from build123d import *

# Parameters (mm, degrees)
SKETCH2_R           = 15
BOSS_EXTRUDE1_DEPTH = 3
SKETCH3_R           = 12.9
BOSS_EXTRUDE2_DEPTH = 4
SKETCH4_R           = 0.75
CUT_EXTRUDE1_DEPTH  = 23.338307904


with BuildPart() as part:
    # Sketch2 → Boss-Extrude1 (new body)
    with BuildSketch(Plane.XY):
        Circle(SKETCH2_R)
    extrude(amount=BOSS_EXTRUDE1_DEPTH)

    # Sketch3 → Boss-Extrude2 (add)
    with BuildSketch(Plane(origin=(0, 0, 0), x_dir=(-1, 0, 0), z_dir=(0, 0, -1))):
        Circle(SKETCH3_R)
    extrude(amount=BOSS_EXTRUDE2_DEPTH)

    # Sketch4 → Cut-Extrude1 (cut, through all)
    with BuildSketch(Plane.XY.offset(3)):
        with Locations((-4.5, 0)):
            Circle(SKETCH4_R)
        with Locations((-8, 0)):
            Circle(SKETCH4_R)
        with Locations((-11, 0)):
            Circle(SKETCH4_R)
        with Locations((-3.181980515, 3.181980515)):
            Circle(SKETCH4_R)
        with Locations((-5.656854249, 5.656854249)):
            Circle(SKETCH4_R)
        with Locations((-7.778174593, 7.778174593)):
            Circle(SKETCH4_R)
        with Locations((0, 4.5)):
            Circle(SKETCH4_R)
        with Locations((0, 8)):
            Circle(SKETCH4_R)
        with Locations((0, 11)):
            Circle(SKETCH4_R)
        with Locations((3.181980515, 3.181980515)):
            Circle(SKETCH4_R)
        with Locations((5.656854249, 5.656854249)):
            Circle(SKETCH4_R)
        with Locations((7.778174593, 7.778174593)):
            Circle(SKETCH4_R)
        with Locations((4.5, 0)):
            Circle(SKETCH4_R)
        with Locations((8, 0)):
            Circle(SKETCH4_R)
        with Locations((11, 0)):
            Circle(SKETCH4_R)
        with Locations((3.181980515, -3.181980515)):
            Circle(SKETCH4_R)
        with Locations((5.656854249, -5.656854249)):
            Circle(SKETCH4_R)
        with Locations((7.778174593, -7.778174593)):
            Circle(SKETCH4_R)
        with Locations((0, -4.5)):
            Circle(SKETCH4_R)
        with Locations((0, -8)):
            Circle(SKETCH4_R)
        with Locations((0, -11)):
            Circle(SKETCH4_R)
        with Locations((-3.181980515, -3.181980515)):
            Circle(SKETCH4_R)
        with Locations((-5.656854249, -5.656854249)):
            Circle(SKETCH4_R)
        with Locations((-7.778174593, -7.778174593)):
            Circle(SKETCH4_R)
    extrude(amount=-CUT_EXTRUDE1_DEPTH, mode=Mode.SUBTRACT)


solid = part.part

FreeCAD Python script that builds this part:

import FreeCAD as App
import Part
import Sketcher
Q = App.Units.Quantity

doc = App.newDocument("Part")
body = doc.addObject("PartDesign::Body", "Body")

# Sketch on XY plane
sketch1 = body.newObject("Sketcher::SketchObject", "Sketch")
sketch1.AttachmentSupport = (doc.getObject("XY_Plane"), [""])
sketch1.MapMode = "FlatFace"
sketch1.addGeometry(Part.Circle(App.Vector(0, 0, 0), App.Vector(0, 0, 1), 15), False)
sketch1.addConstraint([
    Sketcher.Constraint("Coincident", 0, 3, -1, 1),
    Sketcher.Constraint("Diameter", 0, Q("30 mm")),
])
pad1 = body.newObject("PartDesign::Pad", "Pad")
pad1.Profile = sketch1
pad1.Length = 3

# Sketch on XY plane
sketch2 = body.newObject("Sketcher::SketchObject", "Sketch001")
sketch2.AttachmentSupport = (doc.getObject("XY_Plane"), [""])
sketch2.MapMode = "FlatFace"
sketch2.addGeometry(Part.Circle(App.Vector(0, 0, 0), App.Vector(0, 0, 1), 13), False)
sketch2.addConstraint([
    Sketcher.Constraint("Coincident", 0, 3, -1, 1),
    Sketcher.Constraint("Diameter", 0, Q("25.8 mm")),
])
pad2 = body.newObject("PartDesign::Pad", "Pad001")
pad2.Profile = sketch2
pad2.Length = 4
pad2.Reversed = True

# Sketch on XY plane
sketch3 = body.newObject("Sketcher::SketchObject", "Sketch002")
sketch3.AttachmentSupport = (doc.getObject("XY_Plane"), [""])
sketch3.MapMode = "FlatFace"
sketch3.AttachmentOffset = App.Placement(App.Vector(0, 0, 3), App.Rotation())
sketch3.addGeometry([
    Part.Circle(App.Vector(-4.5, 0, 0), App.Vector(0, 0, 1), 0.8),  # 0
    Part.Circle(App.Vector(-8, 0, 0), App.Vector(0, 0, 1), 0.8),  # 1
    Part.Circle(App.Vector(-11, 0, 0), App.Vector(0, 0, 1), 0.8),  # 2
    Part.Circle(App.Vector(-3.2, 3.2, 0), App.Vector(0, 0, 1), 0.8),  # 3
    Part.Circle(App.Vector(-5.7, 5.7, 0), App.Vector(0, 0, 1), 0.8),  # 4
    Part.Circle(App.Vector(-7.8, 7.8, 0), App.Vector(0, 0, 1), 0.8),  # 5
    Part.Circle(App.Vector(0, 4.5, 0), App.Vector(0, 0, 1), 0.8),  # 6
    Part.Circle(App.Vector(0, 8, 0), App.Vector(0, 0, 1), 0.8),  # 7
    Part.Circle(App.Vector(0, 11, 0), App.Vector(0, 0, 1), 0.8),  # 8
    Part.Circle(App.Vector(3.2, 3.2, 0), App.Vector(0, 0, 1), 0.8),  # 9
    Part.Circle(App.Vector(5.7, 5.7, 0), App.Vector(0, 0, 1), 0.8),  # 10
    Part.Circle(App.Vector(7.8, 7.8, 0), App.Vector(0, 0, 1), 0.8),  # 11
    Part.Circle(App.Vector(4.5, 0, 0), App.Vector(0, 0, 1), 0.8),  # 12
    Part.Circle(App.Vector(8, 0, 0), App.Vector(0, 0, 1), 0.8),  # 13
    Part.Circle(App.Vector(11, 0, 0), App.Vector(0, 0, 1), 0.8),  # 14
    Part.Circle(App.Vector(3.2, -3.2, 0), App.Vector(0, 0, 1), 0.8),  # 15
    Part.Circle(App.Vector(5.7, -5.7, 0), App.Vector(0, 0, 1), 0.8),  # 16
    Part.Circle(App.Vector(7.8, -7.8, 0), App.Vector(0, 0, 1), 0.8),  # 17
    Part.Circle(App.Vector(0, -4.5, 0), App.Vector(0, 0, 1), 0.8),  # 18
    Part.Circle(App.Vector(0, -8, 0), App.Vector(0, 0, 1), 0.8),  # 19
    Part.Circle(App.Vector(0, -11, 0), App.Vector(0, 0, 1), 0.8),  # 20
    Part.Circle(App.Vector(-3.2, -3.2, 0), App.Vector(0, 0, 1), 0.8),  # 21
    Part.Circle(App.Vector(-5.7, -5.7, 0), App.Vector(0, 0, 1), 0.8),  # 22
    Part.Circle(App.Vector(-7.8, -7.8, 0), App.Vector(0, 0, 1), 0.8),  # 23
], False)
sketch3.addConstraint([
    Sketcher.Constraint("Equal", 0, 1),
    Sketcher.Constraint("Equal", 1, 2),
    Sketcher.Constraint("Equal", 2, 3),
    Sketcher.Constraint("Equal", 3, 4),
    Sketcher.Constraint("Equal", 4, 5),
    Sketcher.Constraint("Equal", 5, 6),
    Sketcher.Constraint("Equal", 6, 7),
    Sketcher.Constraint("Equal", 7, 8),
    Sketcher.Constraint("Equal", 8, 9),
    Sketcher.Constraint("Equal", 9, 10),
    Sketcher.Constraint("Equal", 10, 11),
    Sketcher.Constraint("Equal", 11, 12),
    Sketcher.Constraint("Equal", 12, 13),
    Sketcher.Constraint("Equal", 13, 14),
    Sketcher.Constraint("Equal", 14, 15),
    Sketcher.Constraint("Equal", 15, 16),
    Sketcher.Constraint("Equal", 16, 17),
    Sketcher.Constraint("Equal", 17, 18),
    Sketcher.Constraint("Equal", 18, 19),
    Sketcher.Constraint("Equal", 19, 20),
    Sketcher.Constraint("Equal", 20, 21),
    Sketcher.Constraint("Equal", 21, 22),
    Sketcher.Constraint("Equal", 22, 23),
    Sketcher.Constraint("Symmetric", 0, 3, 12, 3, -1, 1),
    Sketcher.Constraint("Symmetric", 1, 3, 13, 3, -1, 1),
    Sketcher.Constraint("Symmetric", 2, 3, 14, 3, -1, 1),
    Sketcher.Constraint("Symmetric", 3, 3, 15, 3, -1, 1),
    Sketcher.Constraint("Symmetric", 4, 3, 16, 3, -1, 1),
    Sketcher.Constraint("Symmetric", 5, 3, 17, 3, -1, 1),
    Sketcher.Constraint("Symmetric", 6, 3, 18, 3, -1, 1),
    Sketcher.Constraint("Symmetric", 7, 3, 19, 3, -1, 1),
    Sketcher.Constraint("Symmetric", 8, 3, 20, 3, -1, 1),
    Sketcher.Constraint("Symmetric", 9, 3, 21, 3, -1, 1),
    Sketcher.Constraint("Symmetric", 10, 3, 22, 3, -1, 1),
    Sketcher.Constraint("Symmetric", 11, 3, 23, 3, -1, 1),
    Sketcher.Constraint("Symmetric", 3, 3, 9, 3, -2),
    Sketcher.Constraint("Symmetric", 4, 3, 10, 3, -2),
    Sketcher.Constraint("Symmetric", 5, 3, 11, 3, -2),
    Sketcher.Constraint("PointOnObject", 0, 3, -1),
    Sketcher.Constraint("PointOnObject", 1, 3, -1),
    Sketcher.Constraint("PointOnObject", 2, 3, -1),
    Sketcher.Constraint("PointOnObject", 6, 3, -2),
    Sketcher.Constraint("PointOnObject", 7, 3, -2),
    Sketcher.Constraint("PointOnObject", 8, 3, -2),
    Sketcher.Constraint("Diameter", 0, Q("1.5 mm")),
    Sketcher.Constraint("DistanceX", 1, 3, -1, 1, Q("8 mm")),
    Sketcher.Constraint("DistanceX", 2, 3, -1, 1, Q("11 mm")),
    Sketcher.Constraint("DistanceY", -1, 1, 7, 3, Q("8 mm")),
    Sketcher.Constraint("DistanceY", -1, 1, 8, 3, Q("11 mm")),
    Sketcher.Constraint("DistanceX", 0, 3, -1, 1, Q("4.5 mm")),
    Sketcher.Constraint("DistanceY", -1, 1, 6, 3, Q("4.5 mm")),
    Sketcher.Constraint("DistanceX", 3, 3, -1, 1, Q("3.181981 mm")),
    Sketcher.Constraint("DistanceY", -1, 1, 3, 3, Q("3.181981 mm")),
    Sketcher.Constraint("DistanceX", 5, 3, 4, 3, Q("2.12132 mm")),
    Sketcher.Constraint("DistanceY", 4, 3, 5, 3, Q("2.12132 mm")),
    Sketcher.Constraint("DistanceX", 4, 3, -1, 1, Q("5.656854 mm")),
    Sketcher.Constraint("DistanceY", -1, 1, 4, 3, Q("5.656854 mm")),
])
pocket1 = body.newObject("PartDesign::Pocket", "Pocket")
pocket1.Profile = sketch3
pocket1.Type = "ThroughAll"

doc.recompute()
